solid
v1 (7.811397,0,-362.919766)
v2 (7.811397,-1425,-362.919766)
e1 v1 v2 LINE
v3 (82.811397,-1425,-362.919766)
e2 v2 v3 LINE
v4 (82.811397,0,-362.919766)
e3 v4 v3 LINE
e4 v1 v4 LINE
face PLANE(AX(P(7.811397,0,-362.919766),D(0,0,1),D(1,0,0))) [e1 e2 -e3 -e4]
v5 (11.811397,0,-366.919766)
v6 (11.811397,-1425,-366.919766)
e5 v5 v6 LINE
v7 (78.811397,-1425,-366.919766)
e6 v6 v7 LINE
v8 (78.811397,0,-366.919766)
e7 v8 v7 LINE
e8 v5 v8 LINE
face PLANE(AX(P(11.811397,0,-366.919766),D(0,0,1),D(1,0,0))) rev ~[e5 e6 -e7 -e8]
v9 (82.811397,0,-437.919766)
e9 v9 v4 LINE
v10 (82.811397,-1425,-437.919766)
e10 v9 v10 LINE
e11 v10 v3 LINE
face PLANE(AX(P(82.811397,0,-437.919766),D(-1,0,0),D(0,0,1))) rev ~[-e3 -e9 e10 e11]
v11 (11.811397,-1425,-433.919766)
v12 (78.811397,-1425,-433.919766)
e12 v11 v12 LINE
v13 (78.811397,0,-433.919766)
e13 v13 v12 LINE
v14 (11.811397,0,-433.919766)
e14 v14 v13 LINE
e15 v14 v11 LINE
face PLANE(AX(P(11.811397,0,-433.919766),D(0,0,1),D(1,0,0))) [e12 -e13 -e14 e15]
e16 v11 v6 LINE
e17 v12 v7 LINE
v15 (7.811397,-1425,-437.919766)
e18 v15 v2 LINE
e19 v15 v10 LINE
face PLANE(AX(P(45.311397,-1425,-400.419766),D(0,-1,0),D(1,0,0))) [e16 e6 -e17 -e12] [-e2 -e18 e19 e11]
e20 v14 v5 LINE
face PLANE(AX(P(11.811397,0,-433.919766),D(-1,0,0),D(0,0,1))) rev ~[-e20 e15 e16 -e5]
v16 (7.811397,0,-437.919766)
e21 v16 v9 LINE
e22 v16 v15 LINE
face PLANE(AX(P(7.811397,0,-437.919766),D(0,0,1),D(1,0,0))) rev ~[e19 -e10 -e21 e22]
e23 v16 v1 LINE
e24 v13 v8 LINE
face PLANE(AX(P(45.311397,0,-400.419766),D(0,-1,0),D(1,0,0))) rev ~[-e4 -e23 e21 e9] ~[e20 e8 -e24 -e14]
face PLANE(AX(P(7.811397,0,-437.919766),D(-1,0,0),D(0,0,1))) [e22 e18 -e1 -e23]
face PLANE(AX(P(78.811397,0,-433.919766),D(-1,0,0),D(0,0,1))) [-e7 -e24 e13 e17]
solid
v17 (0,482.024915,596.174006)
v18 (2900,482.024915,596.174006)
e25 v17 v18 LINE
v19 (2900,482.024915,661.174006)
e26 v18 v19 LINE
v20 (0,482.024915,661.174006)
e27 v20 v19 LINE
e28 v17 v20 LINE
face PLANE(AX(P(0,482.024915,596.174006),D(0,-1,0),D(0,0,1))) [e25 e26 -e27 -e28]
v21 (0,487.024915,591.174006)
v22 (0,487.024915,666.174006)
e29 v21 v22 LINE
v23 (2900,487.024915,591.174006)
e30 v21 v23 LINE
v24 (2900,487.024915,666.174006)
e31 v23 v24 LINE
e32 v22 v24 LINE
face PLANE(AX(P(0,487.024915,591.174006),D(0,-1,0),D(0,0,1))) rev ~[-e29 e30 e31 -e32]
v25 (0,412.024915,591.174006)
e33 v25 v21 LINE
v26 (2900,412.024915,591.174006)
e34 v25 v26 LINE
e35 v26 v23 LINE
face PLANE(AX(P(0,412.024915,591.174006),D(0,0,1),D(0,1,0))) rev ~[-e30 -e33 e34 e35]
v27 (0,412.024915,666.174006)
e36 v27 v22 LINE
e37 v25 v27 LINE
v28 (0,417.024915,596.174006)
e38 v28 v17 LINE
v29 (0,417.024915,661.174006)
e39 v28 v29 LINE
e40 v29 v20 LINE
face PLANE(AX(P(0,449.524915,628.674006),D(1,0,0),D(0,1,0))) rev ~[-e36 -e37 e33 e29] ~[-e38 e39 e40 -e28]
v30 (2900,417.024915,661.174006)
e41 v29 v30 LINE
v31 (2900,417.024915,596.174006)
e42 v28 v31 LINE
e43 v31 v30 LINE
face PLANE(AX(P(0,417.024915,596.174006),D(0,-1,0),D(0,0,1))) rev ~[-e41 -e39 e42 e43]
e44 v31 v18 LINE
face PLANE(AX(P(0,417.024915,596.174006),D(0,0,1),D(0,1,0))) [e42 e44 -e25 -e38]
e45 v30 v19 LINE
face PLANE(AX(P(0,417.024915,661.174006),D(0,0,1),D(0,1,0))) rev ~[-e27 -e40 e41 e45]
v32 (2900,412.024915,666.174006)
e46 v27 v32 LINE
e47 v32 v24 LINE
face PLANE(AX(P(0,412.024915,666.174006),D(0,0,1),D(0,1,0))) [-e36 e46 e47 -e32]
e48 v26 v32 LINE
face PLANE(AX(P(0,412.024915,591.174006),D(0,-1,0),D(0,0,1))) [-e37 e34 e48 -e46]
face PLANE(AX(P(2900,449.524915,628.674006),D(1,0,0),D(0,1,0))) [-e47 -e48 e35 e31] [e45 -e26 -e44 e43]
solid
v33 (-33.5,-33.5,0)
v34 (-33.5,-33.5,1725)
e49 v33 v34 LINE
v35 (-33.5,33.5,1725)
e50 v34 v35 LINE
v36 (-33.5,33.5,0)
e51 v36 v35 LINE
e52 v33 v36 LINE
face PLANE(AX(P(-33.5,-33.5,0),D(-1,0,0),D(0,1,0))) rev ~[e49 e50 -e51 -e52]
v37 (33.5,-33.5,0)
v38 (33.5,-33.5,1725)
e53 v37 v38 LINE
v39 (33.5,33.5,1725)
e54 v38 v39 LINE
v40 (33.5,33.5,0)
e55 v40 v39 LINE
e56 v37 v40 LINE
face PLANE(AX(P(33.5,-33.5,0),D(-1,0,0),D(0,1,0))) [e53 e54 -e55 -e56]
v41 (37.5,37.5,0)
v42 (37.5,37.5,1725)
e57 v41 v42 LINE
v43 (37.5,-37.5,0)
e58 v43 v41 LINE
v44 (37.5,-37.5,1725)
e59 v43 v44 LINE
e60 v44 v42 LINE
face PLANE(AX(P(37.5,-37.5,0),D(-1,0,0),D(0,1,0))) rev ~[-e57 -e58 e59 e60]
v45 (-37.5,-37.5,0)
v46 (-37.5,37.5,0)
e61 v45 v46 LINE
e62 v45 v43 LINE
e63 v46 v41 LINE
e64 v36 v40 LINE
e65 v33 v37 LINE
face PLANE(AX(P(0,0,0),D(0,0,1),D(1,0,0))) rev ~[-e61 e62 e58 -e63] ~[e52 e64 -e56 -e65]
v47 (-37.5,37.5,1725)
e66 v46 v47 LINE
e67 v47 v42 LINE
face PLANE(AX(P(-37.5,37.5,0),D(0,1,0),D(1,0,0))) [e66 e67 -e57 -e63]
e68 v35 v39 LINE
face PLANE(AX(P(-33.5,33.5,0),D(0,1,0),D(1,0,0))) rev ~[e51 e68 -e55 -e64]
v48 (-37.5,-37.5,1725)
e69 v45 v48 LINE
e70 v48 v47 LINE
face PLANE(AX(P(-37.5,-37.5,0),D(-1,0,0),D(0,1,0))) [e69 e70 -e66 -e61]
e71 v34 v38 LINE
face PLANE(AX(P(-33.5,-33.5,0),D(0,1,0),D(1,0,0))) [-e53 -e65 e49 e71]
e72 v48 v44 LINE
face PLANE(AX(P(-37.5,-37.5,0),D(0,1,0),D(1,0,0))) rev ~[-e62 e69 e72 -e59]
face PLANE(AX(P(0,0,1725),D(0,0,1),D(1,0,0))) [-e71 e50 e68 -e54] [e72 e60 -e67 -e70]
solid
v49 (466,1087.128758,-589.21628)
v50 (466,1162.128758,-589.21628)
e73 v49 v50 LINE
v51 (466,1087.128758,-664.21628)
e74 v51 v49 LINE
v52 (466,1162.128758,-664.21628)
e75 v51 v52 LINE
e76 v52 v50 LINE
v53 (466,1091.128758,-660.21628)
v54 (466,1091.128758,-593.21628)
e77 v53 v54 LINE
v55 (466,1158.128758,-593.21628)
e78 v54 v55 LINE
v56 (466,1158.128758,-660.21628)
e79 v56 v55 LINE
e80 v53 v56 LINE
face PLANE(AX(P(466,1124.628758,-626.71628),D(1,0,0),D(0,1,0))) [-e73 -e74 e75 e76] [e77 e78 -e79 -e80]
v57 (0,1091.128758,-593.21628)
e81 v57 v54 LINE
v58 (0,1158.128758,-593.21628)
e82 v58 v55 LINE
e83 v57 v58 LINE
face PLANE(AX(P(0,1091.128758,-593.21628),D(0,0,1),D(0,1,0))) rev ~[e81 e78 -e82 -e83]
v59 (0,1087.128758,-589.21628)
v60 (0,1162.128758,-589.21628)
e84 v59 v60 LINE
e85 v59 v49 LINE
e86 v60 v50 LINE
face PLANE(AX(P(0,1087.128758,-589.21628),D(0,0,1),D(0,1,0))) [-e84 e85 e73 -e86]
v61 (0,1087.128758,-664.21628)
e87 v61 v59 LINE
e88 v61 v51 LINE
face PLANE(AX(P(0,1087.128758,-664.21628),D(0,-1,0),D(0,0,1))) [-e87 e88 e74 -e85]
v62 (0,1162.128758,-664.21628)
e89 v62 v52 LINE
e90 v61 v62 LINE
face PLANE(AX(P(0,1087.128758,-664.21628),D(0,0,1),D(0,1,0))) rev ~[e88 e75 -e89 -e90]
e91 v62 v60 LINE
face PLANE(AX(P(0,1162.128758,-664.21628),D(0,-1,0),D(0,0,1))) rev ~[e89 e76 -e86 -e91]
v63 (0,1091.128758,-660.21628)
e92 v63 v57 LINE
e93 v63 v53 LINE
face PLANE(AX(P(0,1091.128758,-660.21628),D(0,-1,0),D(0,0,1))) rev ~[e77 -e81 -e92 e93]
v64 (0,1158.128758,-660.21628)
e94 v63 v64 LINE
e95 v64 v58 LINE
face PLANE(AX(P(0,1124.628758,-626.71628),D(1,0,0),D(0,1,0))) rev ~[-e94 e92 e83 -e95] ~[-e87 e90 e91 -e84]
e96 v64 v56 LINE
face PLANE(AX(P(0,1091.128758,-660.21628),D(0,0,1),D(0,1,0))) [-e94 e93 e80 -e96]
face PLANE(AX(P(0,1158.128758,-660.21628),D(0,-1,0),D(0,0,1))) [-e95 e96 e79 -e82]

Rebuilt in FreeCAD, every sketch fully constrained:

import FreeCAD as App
import Part
import Sketcher

V = App.Vector

doc = App.newDocument("Part")
body = doc.addObject("PartDesign::Body", "Body")

# Sketch on XY plane
sketch1 = body.newObject("Sketcher::SketchObject", "Sketch")
sketch1.AttachmentSupport = (doc.getObject("XY_Plane"), [""])
sketch1.MapMode = "FlatFace"
sketch1.addGeometry([
    Part.LineSegment(V(-38, 38, 0), V(-38, -38, 0)),  # 0
    Part.LineSegment(V(-38, -38, 0), V(38, -38, 0)),  # 1
    Part.LineSegment(V(38, -38, 0), V(38, 38, 0)),  # 2
    Part.LineSegment(V(38, 38, 0), V(-38, 38, 0)),  # 3
    Part.LineSegment(V(34, -34, 0), V(-34, -34, 0)),  # 4
    Part.LineSegment(V(-34, -34, 0), V(-34, 34, 0)),  # 5
    Part.LineSegment(V(-34, 34, 0), V(34, 34, 0)),  # 6
    Part.LineSegment(V(34, 34, 0), V(34, -34, 0)),  # 7
], False)
sketch1.addConstraint([
    Sketcher.Constraint("Coincident", 0, 2, 1, 1),
    Sketcher.Constraint("Coincident", 1, 2, 2, 1),
    Sketcher.Constraint("Coincident", 2, 2, 3, 1),
    Sketcher.Constraint("Coincident", 3, 2, 0, 1),
    Sketcher.Constraint("Coincident", 4, 2, 5, 1),
    Sketcher.Constraint("Coincident", 5, 2, 6, 1),
    Sketcher.Constraint("Coincident", 6, 2, 7, 1),
    Sketcher.Constraint("Coincident", 7, 2, 4, 1),
    Sketcher.Constraint("Vertical", 0),
    Sketcher.Constraint("Horizontal", 1),
    Sketcher.Constraint("Vertical", 2),
    Sketcher.Constraint("Horizontal", 3),
    Sketcher.Constraint("Horizontal", 4),
    Sketcher.Constraint("Vertical", 5),
    Sketcher.Constraint("Horizontal", 6),
    Sketcher.Constraint("Vertical", 7),
    Sketcher.Constraint("Symmetric", 0, 2, 2, 2, -1, 1),
    Sketcher.Constraint("Symmetric", 4, 2, 6, 2, -1, 1),
    Sketcher.Constraint("Equal", 3, 0),
    Sketcher.Constraint("Equal", 6, 5),
    Sketcher.Constraint("DistanceX", 1, 1, 1, 2, 75.0),
    Sketcher.Constraint("DistanceX", 4, 2, 4, 1, 67.0),
])
pad1 = body.newObject("PartDesign::Pad", "Pad")
pad1.Profile = sketch1
pad1.Length = 1725
body2 = doc.addObject("PartDesign::Body", "Body001")

# Sketch on YZ plane
sketch2 = body2.newObject("Sketcher::SketchObject", "Sketch001")
sketch2.AttachmentSupport = (doc.getObject("YZ_Plane001"), [""])
sketch2.MapMode = "FlatFace"
sketch2.addGeometry([
    Part.LineSegment(V(412, 666, 0), V(412, 591, 0)),  # 0
    Part.LineSegment(V(412, 591, 0), V(487, 591, 0)),  # 1
    Part.LineSegment(V(487, 591, 0), V(487, 666, 0)),  # 2
    Part.LineSegment(V(487, 666, 0), V(412, 666, 0)),  # 3
    Part.LineSegment(V(482, 596, 0), V(417, 596, 0)),  # 4
    Part.LineSegment(V(417, 596, 0), V(417, 661, 0)),  # 5
    Part.LineSegment(V(417, 661, 0), V(482, 661, 0)),  # 6
    Part.LineSegment(V(482, 661, 0), V(482, 596, 0)),  # 7
], False)
sketch2.addConstraint([
    Sketcher.Constraint("Coincident", 0, 2, 1, 1),
    Sketcher.Constraint("Coincident", 1, 2, 2, 1),
    Sketcher.Constraint("Coincident", 2, 2, 3, 1),
    Sketcher.Constraint("Coincident", 3, 2, 0, 1),
    Sketcher.Constraint("Coincident", 4, 2, 5, 1),
    Sketcher.Constraint("Coincident", 5, 2, 6, 1),
    Sketcher.Constraint("Coincident", 6, 2, 7, 1),
    Sketcher.Constraint("Coincident", 7, 2, 4, 1),
    Sketcher.Constraint("Vertical", 0),
    Sketcher.Constraint("Horizontal", 1),
    Sketcher.Constraint("Vertical", 2),
    Sketcher.Constraint("Horizontal", 3),
    Sketcher.Constraint("Horizontal", 4),
    Sketcher.Constraint("Vertical", 5),
    Sketcher.Constraint("Horizontal", 6),
    Sketcher.Constraint("Vertical", 7),
    Sketcher.Constraint("Equal", 3, 0),
    Sketcher.Constraint("Equal", 6, 5),
    Sketcher.Constraint("DistanceX", 1, 1, 1, 2, 75.0),
    Sketcher.Constraint("DistanceX", 4, 2, 4, 1, 65.0),
    Sketcher.Constraint("DistanceX", 0, 2, 4, 2, 5.0),
    Sketcher.Constraint("DistanceY", 0, 2, 4, 2, 5.0),
    Sketcher.Constraint("DistanceX", -1, 1, 0, 2, 412.024915),
    Sketcher.Constraint("DistanceY", -1, 1, 0, 2, 591.174006),
])
pad2 = body2.newObject("PartDesign::Pad", "Pad001")
pad2.Profile = sketch2
pad2.Length = 2900
body3 = doc.addObject("PartDesign::Body", "Body002")

# Sketch on XZ plane
sketch3 = body3.newObject("Sketcher::SketchObject", "Sketch002")
sketch3.AttachmentSupport = (doc.getObject("XZ_Plane002"), [""])
sketch3.MapMode = "FlatFace"
sketch3.addGeometry([
    Part.LineSegment(V(8, -363, 0), V(8, -438, 0)),  # 0
    Part.LineSegment(V(8, -438, 0), V(83, -438, 0)),  # 1
    Part.LineSegment(V(83, -438, 0), V(83, -363, 0)),  # 2
    Part.LineSegment(V(83, -363, 0), V(8, -363, 0)),  # 3
    Part.LineSegment(V(79, -434, 0), V(12, -434, 0)),  # 4
    Part.LineSegment(V(12, -434, 0), V(12, -367, 0)),  # 5
    Part.LineSegment(V(12, -367, 0), V(79, -367, 0)),  # 6
    Part.LineSegment(V(79, -367, 0), V(79, -434, 0)),  # 7
], False)
sketch3.addConstraint([
    Sketcher.Constraint("Coincident", 0, 2, 1, 1),
    Sketcher.Constraint("Coincident", 1, 2, 2, 1),
    Sketcher.Constraint("Coincident", 2, 2, 3, 1),
    Sketcher.Constraint("Coincident", 3, 2, 0, 1),
    Sketcher.Constraint("Coincident", 4, 2, 5, 1),
    Sketcher.Constraint("Coincident", 5, 2, 6, 1),
    Sketcher.Constraint("Coincident", 6, 2, 7, 1),
    Sketcher.Constraint("Coincident", 7, 2, 4, 1),
    Sketcher.Constraint("Vertical", 0),
    Sketcher.Constraint("Horizontal", 1),
    Sketcher.Constraint("Vertical", 2),
    Sketcher.Constraint("Horizontal", 3),
    Sketcher.Constraint("Horizontal", 4),
    Sketcher.Constraint("Vertical", 5),
    Sketcher.Constraint("Horizontal", 6),
    Sketcher.Constraint("Vertical", 7),
    Sketcher.Constraint("Equal", 3, 0),
    Sketcher.Constraint("Equal", 6, 5),
    Sketcher.Constraint("DistanceX", 1, 1, 1, 2, 75.0),
    Sketcher.Constraint("DistanceX", 4, 2, 4, 1, 67.0),
    Sketcher.Constraint("DistanceX", 0, 2, 4, 2, 4.0),
    Sketcher.Constraint("DistanceY", 0, 2, 4, 2, 4.0),
    Sketcher.Constraint("DistanceX", -1, 1, 0, 2, 7.811397),
    Sketcher.Constraint("DistanceY", 0, 2, -1, 1, 437.919766),
])
pad3 = body3.newObject("PartDesign::Pad", "Pad002")
pad3.Profile = sketch3
pad3.Length = 1425
body4 = doc.addObject("PartDesign::Body", "Body003")

# Sketch on YZ plane
sketch4 = body4.newObject("Sketcher::SketchObject", "Sketch003")
sketch4.AttachmentSupport = (doc.getObject("YZ_Plane003"), [""])
sketch4.MapMode = "FlatFace"
sketch4.addGeometry([
    Part.LineSegment(V(1087, -589, 0), V(1087, -664, 0)),  # 0
    Part.LineSegment(V(1087, -664, 0), V(1162, -664, 0)),  # 1
    Part.LineSegment(V(1162, -664, 0), V(1162, -589, 0)),  # 2
    Part.LineSegment(V(1162, -589, 0), V(1087, -589, 0)),  # 3
    Part.LineSegment(V(1158, -660, 0), V(1091, -660, 0)),  # 4
    Part.LineSegment(V(1091, -660, 0), V(1091, -593, 0)),  # 5
    Part.LineSegment(V(1091, -593, 0), V(1158, -593, 0)),  # 6
    Part.LineSegment(V(1158, -593, 0), V(1158, -660, 0)),  # 7
], False)
sketch4.addConstraint([
    Sketcher.Constraint("Coincident", 0, 2, 1, 1),
    Sketcher.Constraint("Coincident", 1, 2, 2, 1),
    Sketcher.Constraint("Coincident", 2, 2, 3, 1),
    Sketcher.Constraint("Coincident", 3, 2, 0, 1),
    Sketcher.Constraint("Coincident", 4, 2, 5, 1),
    Sketcher.Constraint("Coincident", 5, 2, 6, 1),
    Sketcher.Constraint("Coincident", 6, 2, 7, 1),
    Sketcher.Constraint("Coincident", 7, 2, 4, 1),
    Sketcher.Constraint("Vertical", 0),
    Sketcher.Constraint("Horizontal", 1),
    Sketcher.Constraint("Vertical", 2),
    Sketcher.Constraint("Horizontal", 3),
    Sketcher.Constraint("Horizontal", 4),
    Sketcher.Constraint("Vertical", 5),
    Sketcher.Constraint("Horizontal", 6),
    Sketcher.Constraint("Vertical", 7),
    Sketcher.Constraint("Equal", 3, 0),
    Sketcher.Constraint("Equal", 6, 5),
    Sketcher.Constraint("DistanceX", 1, 1, 1, 2, 75.0),
    Sketcher.Constraint("DistanceX", 4, 2, 4, 1, 67.0),
    Sketcher.Constraint("DistanceX", 0, 2, 4, 2, 4.0),
    Sketcher.Constraint("DistanceY", 0, 2, 4, 2, 4.0),
    Sketcher.Constraint("DistanceX", -1, 1, 0, 2, 1087.128758),
    Sketcher.Constraint("DistanceY", 0, 2, -1, 1, 664.21628),
])
pad4 = body4.newObject("PartDesign::Pad", "Pad003")
pad4.Profile = sketch4
pad4.Length = 466

doc.recompute()
